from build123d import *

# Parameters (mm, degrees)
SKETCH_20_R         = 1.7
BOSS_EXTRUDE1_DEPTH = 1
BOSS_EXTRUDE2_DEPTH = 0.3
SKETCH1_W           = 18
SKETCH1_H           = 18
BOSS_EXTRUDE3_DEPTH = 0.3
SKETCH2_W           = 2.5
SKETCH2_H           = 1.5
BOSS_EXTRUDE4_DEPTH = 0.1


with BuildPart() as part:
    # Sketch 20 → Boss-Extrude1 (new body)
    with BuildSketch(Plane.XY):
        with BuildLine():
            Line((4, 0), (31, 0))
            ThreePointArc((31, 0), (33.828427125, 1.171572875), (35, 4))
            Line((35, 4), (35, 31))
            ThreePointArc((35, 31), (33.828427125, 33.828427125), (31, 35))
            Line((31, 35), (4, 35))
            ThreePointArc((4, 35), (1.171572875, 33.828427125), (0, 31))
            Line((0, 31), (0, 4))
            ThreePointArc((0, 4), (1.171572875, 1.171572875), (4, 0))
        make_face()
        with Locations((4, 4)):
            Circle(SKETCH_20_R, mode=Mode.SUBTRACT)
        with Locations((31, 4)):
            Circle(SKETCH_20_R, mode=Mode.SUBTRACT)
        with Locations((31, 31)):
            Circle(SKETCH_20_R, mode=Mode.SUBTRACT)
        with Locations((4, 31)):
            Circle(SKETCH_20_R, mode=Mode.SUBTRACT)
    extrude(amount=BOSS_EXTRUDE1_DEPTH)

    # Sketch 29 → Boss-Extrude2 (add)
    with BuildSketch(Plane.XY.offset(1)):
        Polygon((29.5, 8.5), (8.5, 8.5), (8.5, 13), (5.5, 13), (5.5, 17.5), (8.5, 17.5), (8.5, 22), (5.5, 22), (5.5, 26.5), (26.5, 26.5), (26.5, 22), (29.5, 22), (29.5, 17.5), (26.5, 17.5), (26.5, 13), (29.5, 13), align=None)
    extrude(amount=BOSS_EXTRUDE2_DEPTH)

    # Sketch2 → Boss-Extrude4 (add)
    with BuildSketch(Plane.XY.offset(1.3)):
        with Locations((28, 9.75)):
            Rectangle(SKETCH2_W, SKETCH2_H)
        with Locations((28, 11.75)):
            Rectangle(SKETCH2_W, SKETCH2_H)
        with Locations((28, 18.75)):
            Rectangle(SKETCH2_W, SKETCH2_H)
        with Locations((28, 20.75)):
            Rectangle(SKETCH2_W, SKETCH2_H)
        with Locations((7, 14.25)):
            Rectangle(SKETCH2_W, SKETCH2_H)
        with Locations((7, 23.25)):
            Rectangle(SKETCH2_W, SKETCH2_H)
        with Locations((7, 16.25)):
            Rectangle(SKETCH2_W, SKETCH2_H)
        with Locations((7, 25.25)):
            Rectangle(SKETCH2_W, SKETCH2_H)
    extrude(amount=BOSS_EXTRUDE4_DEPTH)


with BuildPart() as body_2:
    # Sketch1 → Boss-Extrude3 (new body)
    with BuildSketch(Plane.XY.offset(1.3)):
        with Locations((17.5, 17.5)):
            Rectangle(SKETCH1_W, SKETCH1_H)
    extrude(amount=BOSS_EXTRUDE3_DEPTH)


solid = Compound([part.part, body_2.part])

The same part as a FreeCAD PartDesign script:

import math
import FreeCAD as App
import Part
import Sketcher
from FreeCAD import Vector


def add_polygon(sketch, points):
    """Adds a closed chain of lines whose ends are joined by coincident constraints."""
    first, n = sketch.GeometryCount, len(points)
    for a, b in zip(points, points[1:] + points[:1]):
        sketch.addGeometry(Part.LineSegment(App.Vector(*a, 0), App.Vector(*b, 0)), False)
    for i in range(n):
        sketch.addConstraint(Sketcher.Constraint("Coincident", first + i, 2, first + (i + 1) % n, 1))

doc = App.newDocument("Part")
body = doc.addObject("PartDesign::Body", "Body")

sketch1 = body.newObject("Sketcher::SketchObject", "Sketch")
sketch1.AttachmentSupport = (doc.getObject("XY_Plane"), [""])
sketch1.MapMode = "FlatFace"
sketch1.addGeometry(Part.LineSegment(Vector(4, 0, 0), Vector(31, 0, 0)), False)
sketch1.addGeometry(Part.ArcOfCircle(Part.Circle(Vector(31, 4, 0), Vector(0, 0, 1), 4), math.radians(-90), math.radians(0)), False)
sketch1.addGeometry(Part.LineSegment(Vector(35, 4, 0), Vector(35, 31, 0)), False)
sketch1.addGeometry(Part.ArcOfCircle(Part.Circle(Vector(31, 31, 0), Vector(0, 0, 1), 4), math.radians(0), math.radians(90)), False)
sketch1.addGeometry(Part.LineSegment(Vector(31, 35, 0), Vector(4, 35, 0)), False)
sketch1.addGeometry(Part.ArcOfCircle(Part.Circle(Vector(4, 31, 0), Vector(0, 0, 1), 4), math.radians(90), math.radians(180)), False)
sketch1.addGeometry(Part.LineSegment(Vector(0, 31, 0), Vector(0, 4, 0)), False)
sketch1.addGeometry(Part.ArcOfCircle(Part.Circle(Vector(4, 4, 0), Vector(0, 0, 1), 4), math.radians(180), math.radians(270)), False)
sketch1.addGeometry(Part.Circle(Vector(4, 4, 0), Vector(0, 0, 1), 1.7), False)
sketch1.addGeometry(Part.Circle(Vector(31, 4, 0), Vector(0, 0, 1), 1.7), False)
sketch1.addGeometry(Part.Circle(Vector(4, 31, 0), Vector(0, 0, 1), 1.7), False)
sketch1.addGeometry(Part.Circle(Vector(31, 31, 0), Vector(0, 0, 1), 1.7), False)
sketch1.addConstraint(Sketcher.Constraint("Tangent", 0, 2, 1, 1))
sketch1.addConstraint(Sketcher.Constraint("Tangent", 1, 2, 2, 1))
sketch1.addConstraint(Sketcher.Constraint("Tangent", 2, 2, 3, 1))
sketch1.addConstraint(Sketcher.Constraint("Tangent", 3, 2, 4, 1))
sketch1.addConstraint(Sketcher.Constraint("Tangent", 4, 2, 5, 1))
sketch1.addConstraint(Sketcher.Constraint("Tangent", 5, 2, 6, 1))
sketch1.addConstraint(Sketcher.Constraint("Tangent", 6, 2, 7, 1))
sketch1.addConstraint(Sketcher.Constraint("Tangent", 7, 2, 0, 1))
sketch1.addConstraint(Sketcher.Constraint("Horizontal", 0))
sketch1.addConstraint(Sketcher.Constraint("Vertical", 2))
sketch1.addConstraint(Sketcher.Constraint("Horizontal", 4))
sketch1.addConstraint(Sketcher.Constraint("Vertical", 6))
sketch1.addConstraint(Sketcher.Constraint("Coincident", 8, 3, 7, 3))
sketch1.addConstraint(Sketcher.Constraint("Coincident", 9, 3, 1, 3))
sketch1.addConstraint(Sketcher.Constraint("Coincident", 10, 3, 5, 3))
sketch1.addConstraint(Sketcher.Constraint("Coincident", 11, 3, 3, 3))
sketch1.addConstraint(Sketcher.Constraint("Equal", 1, 3))
sketch1.addConstraint(Sketcher.Constraint("Equal", 3, 5))
sketch1.addConstraint(Sketcher.Constraint("Equal", 5, 7))
sketch1.addConstraint(Sketcher.Constraint("Equal", 8, 9))
sketch1.addConstraint(Sketcher.Constraint("Equal", 9, 10))
sketch1.addConstraint(Sketcher.Constraint("Equal", 10, 11))
sketch1.addConstraint(Sketcher.Constraint("PointOnObject", 0, 2, -1))
sketch1.addConstraint(Sketcher.Constraint("PointOnObject", 5, 2, -2))
sketch1.addConstraint(Sketcher.Constraint("Equal", 4, 2))
sketch1.addConstraint(Sketcher.Constraint("Radius", 1, 4.0))
sketch1.addConstraint(Sketcher.Constraint("Diameter", 8, 3.4))
sketch1.addConstraint(Sketcher.Constraint("DistanceX", 0, 1, 0, 2, 27.0))
pad1 = body.newObject("PartDesign::Pad", "Pad")
pad1.Profile = sketch1
pad1.Length = 1

sketch2 = body.newObject("Sketcher::SketchObject", "Sketch001")
sketch2.AttachmentSupport = (doc.getObject("XY_Plane"), [""])
sketch2.MapMode = "FlatFace"
sketch2.AttachmentOffset = App.Placement(Vector(0, 0, 1), App.Rotation())
add_polygon(sketch2, [(8.5, 8.5), (29.5, 8.5), (29.5, 13), (26.5, 13), (26.5, 17.5), (29.5, 17.5), (29.5, 22), (26.5, 22), (26.5, 26.5), (5.5, 26.5), (5.5, 22), (8.5, 22), (8.5, 17.5), (5.5, 17.5), (5.5, 13), (8.5, 13)])
sketch2.addConstraint(Sketcher.Constraint("Horizontal", 0))
sketch2.addConstraint(Sketcher.Constraint("Vertical", 1))
sketch2.addConstraint(Sketcher.Constraint("Horizontal", 2))
sketch2.addConstraint(Sketcher.Constraint("Vertical", 3))
sketch2.addConstraint(Sketcher.Constraint("Horizontal", 4))
sketch2.addConstraint(Sketcher.Constraint("Vertical", 5))
sketch2.addConstraint(Sketcher.Constraint("Horizontal", 6))
sketch2.addConstraint(Sketcher.Constraint("Vertical", 7))
sketch2.addConstraint(Sketcher.Constraint("Horizontal", 8))
sketch2.addConstraint(Sketcher.Constraint("Vertical", 9))
sketch2.addConstraint(Sketcher.Constraint("Horizontal", 10))
sketch2.addConstraint(Sketcher.Constraint("Vertical", 11))
sketch2.addConstraint(Sketcher.Constraint("Horizontal", 12))
sketch2.addConstraint(Sketcher.Constraint("Vertical", 13))
sketch2.addConstraint(Sketcher.Constraint("Horizontal", 14))
sketch2.addConstraint(Sketcher.Constraint("Vertical", 15))
sketch2.addConstraint(Sketcher.Constraint("Horizontal", 6, 2, 9, 2))
sketch2.addConstraint(Sketcher.Constraint("Horizontal", 4, 2, 11, 2))
sketch2.addConstraint(Sketcher.Constraint("Horizontal", 2, 2, 13, 2))
sketch2.addConstraint(Sketcher.Constraint("Vertical", 1, 2, 4, 2))
sketch2.addConstraint(Sketcher.Constraint("Vertical", 3, 2, 6, 2))
sketch2.addConstraint(Sketcher.Constraint("Vertical", 9, 2, 12, 2))
sketch2.addConstraint(Sketcher.Constraint("Vertical", 11, 2, 14, 2))
sketch2.addConstraint(Sketcher.Constraint("Equal", 0, 8))
sketch2.addConstraint(Sketcher.Constraint("Equal", 1, 3))
sketch2.addConstraint(Sketcher.Constraint("Equal", 3, 5))
sketch2.addConstraint(Sketcher.Constraint("Equal", 5, 7))
sketch2.addConstraint(Sketcher.Constraint("DistanceX", 0, 1, 0, 2, 21.0))
sketch2.addConstraint(Sketcher.Constraint("DistanceX", 2, 2, 2, 1, 3.0))
sketch2.addConstraint(Sketcher.Constraint("DistanceY", 1, 1, 1, 2, 4.5))
sketch2.addConstraint(Sketcher.Constraint("DistanceY", -1, 1, 1, 2, 13.0))
sketch2.addConstraint(Sketcher.Constraint("DistanceX", -1, 1, 0, 2, 29.5))
pad2 = body.newObject("PartDesign::Pad", "Pad001")
pad2.Profile = sketch2
pad2.Length = 0.3

sketch3 = body.newObject("Sketcher::SketchObject", "Sketch002")
sketch3.AttachmentSupport = (doc.getObject("XY_Plane"), [""])
sketch3.MapMode = "FlatFace"
sketch3.AttachmentOffset = App.Placement(Vector(0, 0, 1.3), App.Rotation())
add_polygon(sketch3, [(26.75, 10.5), (26.75, 9), (29.25, 9), (29.25, 10.5)])
add_polygon(sketch3, [(26.75, 12.5), (26.75, 11), (29.25, 11), (29.25, 12.5)])
add_polygon(sketch3, [(26.75, 19.5), (26.75, 18), (29.25, 18), (29.25, 19.5)])
add_polygon(sketch3, [(26.75, 21.5), (26.75, 20), (29.25, 20), (29.25, 21.5)])
add_polygon(sketch3, [(5.75, 15), (5.75, 13.5), (8.25, 13.5), (8.25, 15)])
add_polygon(sketch3, [(5.75, 24), (5.75, 22.5), (8.25, 22.5), (8.25, 24)])
add_polygon(sketch3, [(5.75, 17), (5.75, 15.5), (8.25, 15.5), (8.25, 17)])
add_polygon(sketch3, [(5.75, 26), (5.75, 24.5), (8.25, 24.5), (8.25, 26)])
sketch3.addConstraint(Sketcher.Constraint("Vertical", 0))
sketch3.addConstraint(Sketcher.Constraint("Horizontal", 1))
sketch3.addConstraint(Sketcher.Constraint("Vertical", 2))
sketch3.addConstraint(Sketcher.Constraint("Horizontal", 3))
sketch3.addConstraint(Sketcher.Constraint("Vertical", 4))
sketch3.addConstraint(Sketcher.Constraint("Horizontal", 5))
sketch3.addConstraint(Sketcher.Constraint("Vertical", 6))
sketch3.addConstraint(Sketcher.Constraint("Horizontal", 7))
sketch3.addConstraint(Sketcher.Constraint("Vertical", 8))
sketch3.addConstraint(Sketcher.Constraint("Horizontal", 9))
sketch3.addConstraint(Sketcher.Constraint("Vertical", 10))
sketch3.addConstraint(Sketcher.Constraint("Horizontal", 11))
sketch3.addConstraint(Sketcher.Constraint("Vertical", 12))
sketch3.addConstraint(Sketcher.Constraint("Horizontal", 13))
sketch3.addConstraint(Sketcher.Constraint("Vertical", 14))
sketch3.addConstraint(Sketcher.Constraint("Horizontal", 15))
sketch3.addConstraint(Sketcher.Constraint("Vertical", 16))
sketch3.addConstraint(Sketcher.Constraint("Horizontal", 17))
sketch3.addConstraint(Sketcher.Constraint("Vertical", 18))
sketch3.addConstraint(Sketcher.Constraint("Horizontal", 19))
sketch3.addConstraint(Sketcher.Constraint("Vertical", 20))
sketch3.addConstraint(Sketcher.Constraint("Horizontal", 21))
sketch3.addConstraint(Sketcher.Constraint("Vertical", 22))
sketch3.addConstraint(Sketcher.Constraint("Horizontal", 23))
sketch3.addConstraint(Sketcher.Constraint("Vertical", 24))
sketch3.addConstraint(Sketcher.Constraint("Horizontal", 25))
sketch3.addConstraint(Sketcher.Constraint("Vertical", 26))
sketch3.addConstraint(Sketcher.Constraint("Horizontal", 27))
sketch3.addConstraint(Sketcher.Constraint("Vertical", 28))
sketch3.addConstraint(Sketcher.Constraint("Horizontal", 29))
sketch3.addConstraint(Sketcher.Constraint("Vertical", 30))
sketch3.addConstraint(Sketcher.Constraint("Horizontal", 31))
sketch3.addConstraint(Sketcher.Constraint("Vertical", 3, 2, 4, 2))
sketch3.addConstraint(Sketcher.Constraint("Vertical", 2, 2, 5, 2))
sketch3.addConstraint(Sketcher.Constraint("Vertical", 7, 2, 8, 2))
sketch3.addConstraint(Sketcher.Constraint("Vertical", 6, 2, 9, 2))
sketch3.addConstraint(Sketcher.Constraint("Vertical", 11, 2, 12, 2))
sketch3.addConstraint(Sketcher.Constraint("Vertical", 10, 2, 13, 2))
sketch3.addConstraint(Sketcher.Constraint("Vertical", 19, 2, 20, 2))
sketch3.addConstraint(Sketcher.Constraint("Vertical", 18, 2, 21, 2))
sketch3.addConstraint(Sketcher.Constraint("Vertical", 23, 2, 24, 2))
sketch3.addConstraint(Sketcher.Constraint("Vertical", 22, 2, 25, 2))
sketch3.addConstraint(Sketcher.Constraint("Vertical", 27, 2, 28, 2))
sketch3.addConstraint(Sketcher.Constraint("Vertical", 26, 2, 29, 2))
sketch3.addConstraint(Sketcher.Constraint("Equal", 15, 17))
sketch3.addConstraint(Sketcher.Constraint("Equal", 2, 4))
sketch3.addConstraint(Sketcher.Constraint("Equal", 6, 8))
sketch3.addConstraint(Sketcher.Constraint("Equal", 10, 12))
sketch3.addConstraint(Sketcher.Constraint("Equal", 14, 16))
sketch3.addConstraint(Sketcher.Constraint("Equal", 18, 20))
sketch3.addConstraint(Sketcher.Constraint("Equal", 22, 24))
sketch3.addConstraint(Sketcher.Constraint("Equal", 26, 28))
sketch3.addConstraint(Sketcher.Constraint("DistanceX", 1, 1, 1, 2, 2.5))
sketch3.addConstraint(Sketcher.Constraint("DistanceY", 0, 2, 0, 1, 1.5))
sketch3.addConstraint(Sketcher.Constraint("DistanceY", -1, 1, 0, 2, 9.0))
sketch3.addConstraint(Sketcher.Constraint("DistanceY", -1, 1, 4, 2, 11.0))
sketch3.addConstraint(Sketcher.Constraint("DistanceY", -1, 1, 8, 2, 18.0))
sketch3.addConstraint(Sketcher.Constraint("DistanceY", -1, 1, 12, 2, 20.0))
sketch3.addConstraint(Sketcher.Constraint("DistanceY", -1, 1, 18, 2, 15.0))
sketch3.addConstraint(Sketcher.Constraint("DistanceY", -1, 1, 22, 2, 24.0))
sketch3.addConstraint(Sketcher.Constraint("DistanceY", -1, 1, 26, 2, 17.0))
sketch3.addConstraint(Sketcher.Constraint("DistanceY", -1, 1, 30, 2, 26.0))
sketch3.addConstraint(Sketcher.Constraint("DistanceX", 16, 2, 7, 2, 21.0))
sketch3.addConstraint(Sketcher.Constraint("DistanceX", -1, 1, 0, 2, 26.75))
pad3 = body.newObject("PartDesign::Pad", "Pad002")
pad3.Profile = sketch3
pad3.Length = 0.1
body2 = doc.addObject("PartDesign::Body", "Body001")

sketch4 = body2.newObject("Sketcher::SketchObject", "Sketch003")
sketch4.AttachmentSupport = (doc.getObject("XY_Plane001"), [""])
sketch4.MapMode = "FlatFace"
sketch4.AttachmentOffset = App.Placement(Vector(0, 0, 1.3), App.Rotation())
add_polygon(sketch4, [(8.5, 26.5), (8.5, 8.5), (26.5, 8.5), (26.5, 26.5)])
sketch4.addConstraint(Sketcher.Constraint("Vertical", 0))
sketch4.addConstraint(Sketcher.Constraint("Horizontal", 1))
sketch4.addConstraint(Sketcher.Constraint("Vertical", 2))
sketch4.addConstraint(Sketcher.Constraint("Horizontal", 3))
sketch4.addConstraint(Sketcher.Constraint("Equal", 3, 0))
sketch4.addConstraint(Sketcher.Constraint("DistanceX", 1, 1, 1, 2, 18.0))
sketch4.addConstraint(Sketcher.Constraint("DistanceX", -1, 1, 0, 2, 8.5))
sketch4.addConstraint(Sketcher.Constraint("DistanceY", -1, 1, 0, 2, 8.5))
pad4 = body2.newObject("PartDesign::Pad", "Pad003")
pad4.Profile = sketch4
pad4.Length = 0.3

doc.recompute()
